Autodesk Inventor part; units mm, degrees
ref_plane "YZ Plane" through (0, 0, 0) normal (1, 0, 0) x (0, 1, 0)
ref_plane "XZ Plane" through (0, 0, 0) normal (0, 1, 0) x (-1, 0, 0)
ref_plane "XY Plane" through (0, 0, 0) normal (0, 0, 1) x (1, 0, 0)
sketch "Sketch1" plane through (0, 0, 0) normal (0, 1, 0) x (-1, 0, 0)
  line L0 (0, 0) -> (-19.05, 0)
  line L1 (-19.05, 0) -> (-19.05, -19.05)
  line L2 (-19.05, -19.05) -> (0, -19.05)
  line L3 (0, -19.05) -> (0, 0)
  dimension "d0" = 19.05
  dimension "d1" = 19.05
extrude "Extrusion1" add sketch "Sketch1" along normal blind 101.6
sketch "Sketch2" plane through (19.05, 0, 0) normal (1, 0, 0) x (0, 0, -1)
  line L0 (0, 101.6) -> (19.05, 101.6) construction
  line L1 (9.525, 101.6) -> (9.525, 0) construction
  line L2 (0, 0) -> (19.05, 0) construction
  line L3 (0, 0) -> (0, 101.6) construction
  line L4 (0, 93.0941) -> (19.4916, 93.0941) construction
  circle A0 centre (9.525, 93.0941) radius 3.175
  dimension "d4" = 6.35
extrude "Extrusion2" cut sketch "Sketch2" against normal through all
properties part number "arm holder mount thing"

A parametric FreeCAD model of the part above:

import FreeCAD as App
import Part
import Sketcher
from FreeCAD import Vector
Q = App.Units.Quantity


def add_polygon(sketch, points):
    """Adds a closed chain of lines whose ends are joined by coincident constraints."""
    first, n = sketch.GeometryCount, len(points)
    for a, b in zip(points, points[1:] + points[:1]):
        sketch.addGeometry(Part.LineSegment(App.Vector(*a, 0), App.Vector(*b, 0)), False)
    for i in range(n):
        sketch.addConstraint(Sketcher.Constraint("Coincident", first + i, 2, first + (i + 1) % n, 1))

doc = App.newDocument("Part")
body = doc.addObject("PartDesign::Body", "Body")

# Sketch on XZ plane
sketch1 = body.newObject("Sketcher::SketchObject", "Sketch")
sketch1.AttachmentSupport = (doc.getObject("XZ_Plane"), [""])
sketch1.MapMode = "FlatFace"
add_polygon(sketch1, [(0, -19), (0, 0), (19, 0), (19, -19)])  # lines 0-3
sketch1.addConstraint([
    Sketcher.Constraint("Vertical", 0),
    Sketcher.Constraint("Horizontal", 1),
    Sketcher.Constraint("Vertical", 2),
    Sketcher.Constraint("Horizontal", 3),
    Sketcher.Constraint("Coincident", 0, 2, -1, 1),
    Sketcher.Constraint("Equal", 3, 0),
    Sketcher.Constraint("DistanceX", 1, 1, 1, 2, Q("0.75 in")),
])
pad1 = body.newObject("PartDesign::Pad", "Pad")
pad1.Profile = sketch1
pad1.Length = Q("4 in")
pad1.Reversed = True

# Sketch on YZ plane
sketch2 = body.newObject("Sketcher::SketchObject", "Sketch001")
sketch2.AttachmentSupport = (doc.getObject("YZ_Plane"), [""])
sketch2.MapMode = "FlatFace"
sketch2.AttachmentOffset = App.Placement(Vector(0, 0, 0.75 * 25.4), App.Rotation())
sketch2.addGeometry(Part.Circle(Vector(93.1, -9.5, 0), Vector(0, 0, 1), 3.2), False)
sketch2.addConstraint([
    Sketcher.Constraint("Diameter", 0, Q("0.25 in")),
    Sketcher.Constraint("DistanceY", 0, 3, -1, 1, Q("0.375 in")),
    Sketcher.Constraint("DistanceX", -1, 1, 0, 3, Q("93.094 mm")),
])
pocket1 = body.newObject("PartDesign::Pocket", "Pocket")
pocket1.Profile = sketch2
pocket1.Type = "ThroughAll"

doc.recompute()
